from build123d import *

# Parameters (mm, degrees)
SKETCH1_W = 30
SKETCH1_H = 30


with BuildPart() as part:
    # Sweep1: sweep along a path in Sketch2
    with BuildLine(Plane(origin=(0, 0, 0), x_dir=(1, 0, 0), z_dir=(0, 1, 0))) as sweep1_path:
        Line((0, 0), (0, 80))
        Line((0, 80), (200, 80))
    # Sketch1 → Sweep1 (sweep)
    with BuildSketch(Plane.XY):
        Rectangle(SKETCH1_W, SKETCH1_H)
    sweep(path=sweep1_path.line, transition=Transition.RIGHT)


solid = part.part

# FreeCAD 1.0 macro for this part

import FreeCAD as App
import Part
import Sketcher

V = App.Vector
Q = App.Units.Quantity

doc = App.newDocument("Part")
body = doc.addObject("PartDesign::Body", "Body")

# Sketch on XY plane
sketch1 = body.newObject("Sketcher::SketchObject", "Sketch")
sketch1.AttachmentSupport = (doc.getObject("XY_Plane"), [""])
sketch1.MapMode = "FlatFace"
sketch1.addGeometry(Part.LineSegment(V(-15, 15, 0), V(-15, -15, 0)), False)
sketch1.addGeometry(Part.LineSegment(V(-15, -15, 0), V(15, -15, 0)), False)
sketch1.addGeometry(Part.LineSegment(V(15, -15, 0), V(15, 15, 0)), False)
sketch1.addGeometry(Part.LineSegment(V(15, 15, 0), V(-15, 15, 0)), False)
sketch1.addConstraint(Sketcher.Constraint("Coincident", 0, 2, 1, 1))
sketch1.addConstraint(Sketcher.Constraint("Coincident", 1, 2, 2, 1))
sketch1.addConstraint(Sketcher.Constraint("Coincident", 2, 2, 3, 1))
sketch1.addConstraint(Sketcher.Constraint("Coincident", 3, 2, 0, 1))
sketch1.addConstraint(Sketcher.Constraint("Vertical", 0))
sketch1.addConstraint(Sketcher.Constraint("Horizontal", 1))
sketch1.addConstraint(Sketcher.Constraint("Vertical", 2))
sketch1.addConstraint(Sketcher.Constraint("Horizontal", 3))
sketch1.addConstraint(Sketcher.Constraint("Symmetric", 0, 2, 2, 2, -1, 1))
sketch1.addConstraint(Sketcher.Constraint("Equal", 3, 0))
sketch1.addConstraint(Sketcher.Constraint("DistanceX", 1, 1, 1, 2, Q("30 mm")))

# Sketch on XZ plane
sketch2 = body.newObject("Sketcher::SketchObject", "Sketch001")
sketch2.AttachmentSupport = (doc.getObject("XZ_Plane"), [""])
sketch2.MapMode = "FlatFace"
sketch2.addGeometry(Part.LineSegment(V(0, 0, 0), V(0, -80, 0)), False)
sketch2.addGeometry(Part.LineSegment(V(0, -80, 0), V(200, -80, 0)), False)
sketch2.addConstraint(Sketcher.Constraint("Coincident", 0, 2, 1, 1))
sketch2.addConstraint(Sketcher.Constraint("Vertical", 0))
sketch2.addConstraint(Sketcher.Constraint("Horizontal", 1))
sketch2.addConstraint(Sketcher.Constraint("Coincident", 0, 1, -1, 1))
sketch2.addConstraint(Sketcher.Constraint("DistanceX", 1, 1, 1, 2, Q("200 mm")))
sketch2.addConstraint(Sketcher.Constraint("DistanceY", 0, 2, 0, 1, Q("80 mm")))
doc.recompute()

additivepipe = body.newObject("PartDesign::AdditivePipe", "AdditivePipe")
additivepipe.Profile = sketch1
additivepipe.Spine = (sketch2, ["Edge1", "Edge2"])
additivepipe.Transition = "Right corner"

doc.recompute()
